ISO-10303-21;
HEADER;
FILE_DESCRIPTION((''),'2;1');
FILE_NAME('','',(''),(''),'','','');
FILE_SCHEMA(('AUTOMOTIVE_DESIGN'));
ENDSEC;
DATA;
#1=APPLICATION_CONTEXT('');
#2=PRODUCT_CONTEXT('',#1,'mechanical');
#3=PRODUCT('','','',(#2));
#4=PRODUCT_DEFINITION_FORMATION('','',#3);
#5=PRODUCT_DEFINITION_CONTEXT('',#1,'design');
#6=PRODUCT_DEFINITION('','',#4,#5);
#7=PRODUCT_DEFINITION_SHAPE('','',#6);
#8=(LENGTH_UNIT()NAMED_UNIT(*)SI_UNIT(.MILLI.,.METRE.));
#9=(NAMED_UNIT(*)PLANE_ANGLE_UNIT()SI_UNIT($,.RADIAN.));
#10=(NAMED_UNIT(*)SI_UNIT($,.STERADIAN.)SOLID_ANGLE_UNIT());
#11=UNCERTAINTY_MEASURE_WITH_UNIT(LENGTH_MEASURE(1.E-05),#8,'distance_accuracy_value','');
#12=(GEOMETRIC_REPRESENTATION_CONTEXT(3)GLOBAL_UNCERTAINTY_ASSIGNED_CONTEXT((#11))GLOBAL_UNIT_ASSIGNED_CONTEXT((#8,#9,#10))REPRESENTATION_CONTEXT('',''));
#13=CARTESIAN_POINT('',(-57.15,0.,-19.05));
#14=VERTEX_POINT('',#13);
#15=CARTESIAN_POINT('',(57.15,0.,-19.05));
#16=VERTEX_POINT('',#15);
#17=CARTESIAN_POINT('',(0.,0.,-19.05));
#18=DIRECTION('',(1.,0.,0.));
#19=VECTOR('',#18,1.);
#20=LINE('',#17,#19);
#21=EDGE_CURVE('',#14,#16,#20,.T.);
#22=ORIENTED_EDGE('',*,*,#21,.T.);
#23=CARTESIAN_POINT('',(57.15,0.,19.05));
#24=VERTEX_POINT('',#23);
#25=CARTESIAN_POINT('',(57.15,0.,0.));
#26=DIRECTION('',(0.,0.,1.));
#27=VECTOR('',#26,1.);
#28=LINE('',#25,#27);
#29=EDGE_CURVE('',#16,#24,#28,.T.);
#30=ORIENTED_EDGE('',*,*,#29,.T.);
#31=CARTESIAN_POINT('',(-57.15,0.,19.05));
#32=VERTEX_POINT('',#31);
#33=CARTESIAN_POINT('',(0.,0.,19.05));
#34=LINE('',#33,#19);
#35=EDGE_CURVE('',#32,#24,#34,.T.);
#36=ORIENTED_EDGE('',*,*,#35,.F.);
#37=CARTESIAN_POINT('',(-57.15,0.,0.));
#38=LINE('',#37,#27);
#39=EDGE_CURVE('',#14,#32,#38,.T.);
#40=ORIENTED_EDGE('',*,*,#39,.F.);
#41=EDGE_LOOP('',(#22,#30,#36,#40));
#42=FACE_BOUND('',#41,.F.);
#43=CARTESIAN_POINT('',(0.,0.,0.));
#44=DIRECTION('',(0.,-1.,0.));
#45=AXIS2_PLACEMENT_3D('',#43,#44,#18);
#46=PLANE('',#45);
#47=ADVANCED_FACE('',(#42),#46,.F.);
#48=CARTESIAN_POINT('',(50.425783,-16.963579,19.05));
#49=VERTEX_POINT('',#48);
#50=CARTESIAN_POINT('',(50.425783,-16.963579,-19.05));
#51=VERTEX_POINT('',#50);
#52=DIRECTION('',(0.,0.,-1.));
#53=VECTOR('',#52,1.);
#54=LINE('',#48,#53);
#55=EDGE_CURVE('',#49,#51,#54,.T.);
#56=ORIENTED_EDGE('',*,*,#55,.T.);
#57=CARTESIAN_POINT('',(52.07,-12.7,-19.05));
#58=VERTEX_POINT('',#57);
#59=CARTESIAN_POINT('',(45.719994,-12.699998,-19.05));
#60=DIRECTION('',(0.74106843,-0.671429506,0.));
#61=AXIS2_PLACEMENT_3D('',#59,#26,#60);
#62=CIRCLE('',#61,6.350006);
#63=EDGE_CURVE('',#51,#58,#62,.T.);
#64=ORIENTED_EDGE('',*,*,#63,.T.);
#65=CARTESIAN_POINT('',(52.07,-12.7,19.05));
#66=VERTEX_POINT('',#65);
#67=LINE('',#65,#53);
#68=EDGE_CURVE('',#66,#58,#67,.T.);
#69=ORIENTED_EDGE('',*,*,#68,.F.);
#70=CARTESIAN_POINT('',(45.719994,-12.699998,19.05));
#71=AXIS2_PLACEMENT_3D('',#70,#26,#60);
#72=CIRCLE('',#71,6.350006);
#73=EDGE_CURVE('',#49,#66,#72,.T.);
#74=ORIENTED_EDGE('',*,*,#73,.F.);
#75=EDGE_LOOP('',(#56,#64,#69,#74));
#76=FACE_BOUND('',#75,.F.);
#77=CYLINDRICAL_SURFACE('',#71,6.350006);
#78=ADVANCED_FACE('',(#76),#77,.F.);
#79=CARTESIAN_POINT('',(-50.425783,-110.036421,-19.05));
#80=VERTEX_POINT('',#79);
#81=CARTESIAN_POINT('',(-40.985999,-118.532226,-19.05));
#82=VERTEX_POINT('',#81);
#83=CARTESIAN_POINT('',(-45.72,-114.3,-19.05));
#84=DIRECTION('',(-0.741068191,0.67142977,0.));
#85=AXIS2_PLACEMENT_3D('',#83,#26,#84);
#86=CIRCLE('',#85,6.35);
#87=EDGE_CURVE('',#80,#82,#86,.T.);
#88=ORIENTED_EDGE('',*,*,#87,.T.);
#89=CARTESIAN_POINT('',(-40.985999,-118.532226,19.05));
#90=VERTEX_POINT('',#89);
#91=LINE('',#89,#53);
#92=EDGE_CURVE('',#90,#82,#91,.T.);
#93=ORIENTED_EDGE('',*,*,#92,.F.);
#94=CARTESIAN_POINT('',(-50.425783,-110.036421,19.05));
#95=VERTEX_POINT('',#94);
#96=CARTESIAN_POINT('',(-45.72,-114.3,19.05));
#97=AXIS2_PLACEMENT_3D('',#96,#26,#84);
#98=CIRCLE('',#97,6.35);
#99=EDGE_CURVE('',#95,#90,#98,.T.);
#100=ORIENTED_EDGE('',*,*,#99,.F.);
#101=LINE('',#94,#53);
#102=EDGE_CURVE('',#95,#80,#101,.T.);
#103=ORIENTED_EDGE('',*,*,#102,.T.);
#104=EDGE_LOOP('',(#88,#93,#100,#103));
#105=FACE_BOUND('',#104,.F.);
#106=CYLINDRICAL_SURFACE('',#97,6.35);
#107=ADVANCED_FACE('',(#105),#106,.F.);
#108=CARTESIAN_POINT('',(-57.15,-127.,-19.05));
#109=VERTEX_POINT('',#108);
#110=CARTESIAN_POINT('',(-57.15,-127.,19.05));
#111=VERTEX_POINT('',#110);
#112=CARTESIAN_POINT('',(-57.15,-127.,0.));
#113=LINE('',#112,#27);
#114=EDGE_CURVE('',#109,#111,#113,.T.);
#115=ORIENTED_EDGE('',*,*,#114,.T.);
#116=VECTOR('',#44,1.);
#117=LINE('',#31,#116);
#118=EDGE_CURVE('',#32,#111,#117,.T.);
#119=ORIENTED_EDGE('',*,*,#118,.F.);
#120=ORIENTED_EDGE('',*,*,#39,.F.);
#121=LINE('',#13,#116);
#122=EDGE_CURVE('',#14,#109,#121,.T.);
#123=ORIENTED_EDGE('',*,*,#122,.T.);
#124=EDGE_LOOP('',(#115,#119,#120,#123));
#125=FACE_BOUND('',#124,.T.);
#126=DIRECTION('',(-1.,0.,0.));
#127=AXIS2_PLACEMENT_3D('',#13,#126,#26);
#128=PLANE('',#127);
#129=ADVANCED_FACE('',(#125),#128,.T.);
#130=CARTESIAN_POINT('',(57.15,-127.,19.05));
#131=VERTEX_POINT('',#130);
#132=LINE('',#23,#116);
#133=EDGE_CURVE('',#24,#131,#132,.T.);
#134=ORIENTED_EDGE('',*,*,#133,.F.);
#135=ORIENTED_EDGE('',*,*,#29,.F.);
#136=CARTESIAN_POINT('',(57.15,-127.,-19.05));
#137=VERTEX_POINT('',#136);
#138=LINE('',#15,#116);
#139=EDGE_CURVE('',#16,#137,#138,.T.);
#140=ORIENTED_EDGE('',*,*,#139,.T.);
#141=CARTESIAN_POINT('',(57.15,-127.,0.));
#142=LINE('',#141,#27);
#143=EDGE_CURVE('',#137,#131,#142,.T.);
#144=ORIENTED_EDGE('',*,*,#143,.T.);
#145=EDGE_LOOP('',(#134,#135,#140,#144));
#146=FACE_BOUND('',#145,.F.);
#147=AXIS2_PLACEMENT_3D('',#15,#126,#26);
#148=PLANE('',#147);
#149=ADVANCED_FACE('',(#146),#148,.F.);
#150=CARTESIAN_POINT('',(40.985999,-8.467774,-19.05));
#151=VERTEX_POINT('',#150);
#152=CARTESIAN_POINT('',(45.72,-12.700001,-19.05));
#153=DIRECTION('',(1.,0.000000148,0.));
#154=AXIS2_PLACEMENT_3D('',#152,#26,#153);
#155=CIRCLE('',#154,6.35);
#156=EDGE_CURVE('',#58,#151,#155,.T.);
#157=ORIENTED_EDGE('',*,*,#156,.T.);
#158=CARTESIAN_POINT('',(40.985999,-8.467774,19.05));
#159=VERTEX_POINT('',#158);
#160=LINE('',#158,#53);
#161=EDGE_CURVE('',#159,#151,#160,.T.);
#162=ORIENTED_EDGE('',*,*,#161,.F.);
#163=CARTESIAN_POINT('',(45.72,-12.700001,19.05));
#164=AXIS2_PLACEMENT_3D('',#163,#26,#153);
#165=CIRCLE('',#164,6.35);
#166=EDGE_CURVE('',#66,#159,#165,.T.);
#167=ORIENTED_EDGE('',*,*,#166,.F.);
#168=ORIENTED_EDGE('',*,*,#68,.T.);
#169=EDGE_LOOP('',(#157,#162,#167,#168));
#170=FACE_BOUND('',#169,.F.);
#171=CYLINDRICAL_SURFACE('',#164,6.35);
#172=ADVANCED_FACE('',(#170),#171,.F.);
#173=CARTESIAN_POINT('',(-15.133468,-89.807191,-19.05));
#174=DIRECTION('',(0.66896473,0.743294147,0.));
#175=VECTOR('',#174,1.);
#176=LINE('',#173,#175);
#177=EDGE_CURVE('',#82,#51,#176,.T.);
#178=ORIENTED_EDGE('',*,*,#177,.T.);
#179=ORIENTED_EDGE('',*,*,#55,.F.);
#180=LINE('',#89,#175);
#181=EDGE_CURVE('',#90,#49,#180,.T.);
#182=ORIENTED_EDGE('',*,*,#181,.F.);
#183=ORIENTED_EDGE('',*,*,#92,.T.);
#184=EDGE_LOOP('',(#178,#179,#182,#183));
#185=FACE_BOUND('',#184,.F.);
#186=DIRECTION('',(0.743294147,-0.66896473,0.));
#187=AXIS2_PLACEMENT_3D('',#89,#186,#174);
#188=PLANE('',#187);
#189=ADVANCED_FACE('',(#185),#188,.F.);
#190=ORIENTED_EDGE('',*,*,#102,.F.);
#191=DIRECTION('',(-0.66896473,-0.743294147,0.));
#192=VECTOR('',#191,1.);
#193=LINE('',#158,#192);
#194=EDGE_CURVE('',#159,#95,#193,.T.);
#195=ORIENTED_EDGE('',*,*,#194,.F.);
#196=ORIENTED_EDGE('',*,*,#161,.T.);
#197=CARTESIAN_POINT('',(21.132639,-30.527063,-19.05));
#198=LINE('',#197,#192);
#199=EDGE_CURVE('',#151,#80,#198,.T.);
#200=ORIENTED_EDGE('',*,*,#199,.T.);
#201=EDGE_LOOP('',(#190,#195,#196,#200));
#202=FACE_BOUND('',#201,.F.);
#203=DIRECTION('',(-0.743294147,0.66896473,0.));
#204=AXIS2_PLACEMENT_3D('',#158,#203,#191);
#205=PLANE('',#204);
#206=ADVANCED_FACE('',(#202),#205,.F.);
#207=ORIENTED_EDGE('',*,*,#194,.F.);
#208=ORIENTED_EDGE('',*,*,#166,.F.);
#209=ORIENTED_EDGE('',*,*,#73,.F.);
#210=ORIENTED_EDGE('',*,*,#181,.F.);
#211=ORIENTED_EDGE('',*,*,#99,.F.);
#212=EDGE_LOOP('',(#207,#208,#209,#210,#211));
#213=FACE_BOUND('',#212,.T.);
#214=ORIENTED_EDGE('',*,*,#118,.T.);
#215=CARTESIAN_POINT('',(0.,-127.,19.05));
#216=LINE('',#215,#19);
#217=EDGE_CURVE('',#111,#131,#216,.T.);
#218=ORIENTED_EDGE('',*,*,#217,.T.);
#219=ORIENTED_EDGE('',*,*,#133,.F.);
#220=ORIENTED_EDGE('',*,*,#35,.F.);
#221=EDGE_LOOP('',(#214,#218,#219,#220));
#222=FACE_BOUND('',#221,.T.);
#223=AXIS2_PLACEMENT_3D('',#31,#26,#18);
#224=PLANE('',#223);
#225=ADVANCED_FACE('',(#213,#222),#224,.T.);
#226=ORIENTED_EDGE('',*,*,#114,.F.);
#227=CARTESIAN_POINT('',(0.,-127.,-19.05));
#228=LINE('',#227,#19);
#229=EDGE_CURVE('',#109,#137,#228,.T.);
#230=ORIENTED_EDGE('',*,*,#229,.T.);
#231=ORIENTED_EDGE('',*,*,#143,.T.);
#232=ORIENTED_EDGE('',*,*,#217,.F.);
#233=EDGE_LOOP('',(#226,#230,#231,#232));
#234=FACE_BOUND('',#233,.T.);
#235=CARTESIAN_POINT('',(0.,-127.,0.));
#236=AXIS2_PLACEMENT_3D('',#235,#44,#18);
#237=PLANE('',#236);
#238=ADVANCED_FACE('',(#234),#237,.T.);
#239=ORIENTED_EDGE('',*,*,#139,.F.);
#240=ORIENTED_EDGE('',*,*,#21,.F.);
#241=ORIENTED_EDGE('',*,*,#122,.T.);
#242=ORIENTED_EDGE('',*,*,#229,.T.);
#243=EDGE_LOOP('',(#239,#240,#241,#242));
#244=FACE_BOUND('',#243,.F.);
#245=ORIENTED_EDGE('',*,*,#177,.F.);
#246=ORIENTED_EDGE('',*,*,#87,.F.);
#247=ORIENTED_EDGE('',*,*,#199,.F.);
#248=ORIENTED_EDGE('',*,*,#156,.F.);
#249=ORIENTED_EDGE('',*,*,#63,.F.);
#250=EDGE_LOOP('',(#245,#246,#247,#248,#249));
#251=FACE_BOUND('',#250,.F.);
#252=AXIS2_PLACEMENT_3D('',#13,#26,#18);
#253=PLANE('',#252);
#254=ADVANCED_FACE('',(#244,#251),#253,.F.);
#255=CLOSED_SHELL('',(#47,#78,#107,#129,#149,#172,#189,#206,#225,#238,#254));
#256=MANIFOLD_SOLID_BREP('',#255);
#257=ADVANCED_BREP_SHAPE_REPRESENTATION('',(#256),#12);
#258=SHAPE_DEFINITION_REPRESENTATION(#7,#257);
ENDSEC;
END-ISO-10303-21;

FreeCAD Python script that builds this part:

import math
import FreeCAD as App
import Part
import Sketcher
Q = App.Units.Quantity


def add_polygon(sketch, points):
    """Adds a closed chain of lines whose ends are joined by coincident constraints."""
    first, n = sketch.GeometryCount, len(points)
    for a, b in zip(points, points[1:] + points[:1]):
        sketch.addGeometry(Part.LineSegment(App.Vector(*a, 0), App.Vector(*b, 0)), False)
    for i in range(n):
        sketch.addConstraint(Sketcher.Constraint("Coincident", first + i, 2, first + (i + 1) % n, 1))

doc = App.newDocument("Part")
body = doc.addObject("PartDesign::Body", "Body")

# Sketch on XZ plane
sketch1 = body.newObject("Sketcher::SketchObject", "Sketch")
sketch1.AttachmentSupport = (doc.getObject("XZ_Plane"), [""])
sketch1.MapMode = "FlatFace"
add_polygon(sketch1, [(-57, 19), (-57, -19), (57, -19), (57, 19)])  # lines 0-3
sketch1.addConstraint(Sketcher.Constraint("Vertical", 0))
sketch1.addConstraint(Sketcher.Constraint("Horizontal", 1))
sketch1.addConstraint(Sketcher.Constraint("Vertical", 2))
sketch1.addConstraint(Sketcher.Constraint("Horizontal", 3))
sketch1.addConstraint(Sketcher.Constraint("Symmetric", 0, 2, 2, 2, -1, 1))
sketch1.addConstraint(Sketcher.Constraint("DistanceX", 1, 1, 1, 2, Q("4.5 in")))
sketch1.addConstraint(Sketcher.Constraint("DistanceY", 0, 2, 0, 1, Q("1.5 in")))
pad1 = body.newObject("PartDesign::Pad", "Pad")
pad1.Profile = sketch1
pad1.Length = Q("5 in")

# Sketch on XY plane
sketch2 = body.newObject("Sketcher::SketchObject", "Sketch001")
sketch2.AttachmentSupport = (doc.getObject("XY_Plane"), [""])
sketch2.MapMode = "FlatFace"
sketch2.AttachmentOffset = App.Placement(App.Vector(0, 0, 0.75 * 25.4), App.Rotation())
sketch2.addGeometry(Part.LineSegment(App.Vector(-40.985999, -118.532226, 0), App.Vector(50.425783, -16.963579, 0)), False)
sketch2.addGeometry(Part.ArcOfCircle(Part.Circle(App.Vector(45.719994, -12.699998, 0), App.Vector(0, 0, 1), 6.350006), math.radians(-42.177491), math.radians(-0.000021)), False)
sketch2.addGeometry(Part.ArcOfCircle(Part.Circle(App.Vector(45.72, -12.700001, 0), App.Vector(0, 0, 1), 6.35), math.radians(0.000008), math.radians(138.203081)), False)
sketch2.addGeometry(Part.LineSegment(App.Vector(40.985999, -8.467774, 0), App.Vector(-50.425783, -110.036421, 0)), False)
sketch2.addGeometry(Part.ArcOfCircle(Part.Circle(App.Vector(-45.72, -114.3, 0), App.Vector(0, 0, 1), 6.35), math.radians(137.822489), math.radians(318.20309)), False)
sketch2.addConstraint(Sketcher.Constraint("Coincident", 0, 2, 1, 1))
sketch2.addConstraint(Sketcher.Constraint("Coincident", 1, 2, 2, 1))
sketch2.addConstraint(Sketcher.Constraint("Coincident", 2, 2, 3, 1))
sketch2.addConstraint(Sketcher.Constraint("Coincident", 3, 2, 4, 1))
sketch2.addConstraint(Sketcher.Constraint("Coincident", 4, 2, 0, 1))
sketch2.addConstraint(Sketcher.Constraint("Coincident", 2, 3, 1, 3))
sketch2.addConstraint(Sketcher.Constraint("Radius", 2, Q("0.25 in")))
sketch2.addConstraint(Sketcher.Constraint("Radius", 4, Q("0.25 in")))
sketch2.addConstraint(Sketcher.Constraint("DistanceY", 4, 3, 1, 3, Q("4.0000001 in")))
sketch2.addConstraint(Sketcher.Constraint("DistanceY", 4, 3, 1, 2, Q("4 in")))
sketch2.addConstraint(Sketcher.Constraint("DistanceY", 1, 3, -1, 1, Q("0.4999999 in")))
sketch2.addConstraint(Sketcher.Constraint("DistanceX", -1, 1, 2, 3, Q("1.8 in")))
sketch2.addConstraint(Sketcher.Constraint("DistanceX", 4, 3, -1, 1, Q("1.8 in")))
sketch2.addConstraint(Sketcher.Constraint("DistanceX", -1, 1, 2, 2, 40.985999))
sketch2.addConstraint(Sketcher.Constraint("DistanceX", 4, 2, -1, 1, 40.985999))
sketch2.addConstraint(Sketcher.Constraint("Distance", 0, 136.646639))
sketch2.addConstraint(Sketcher.Constraint("Distance", 3, 136.646639))
pocket1 = body.newObject("PartDesign::Pocket", "Pocket")
pocket1.Profile = sketch2
pocket1.Type = "ThroughAll"

doc.recompute()
